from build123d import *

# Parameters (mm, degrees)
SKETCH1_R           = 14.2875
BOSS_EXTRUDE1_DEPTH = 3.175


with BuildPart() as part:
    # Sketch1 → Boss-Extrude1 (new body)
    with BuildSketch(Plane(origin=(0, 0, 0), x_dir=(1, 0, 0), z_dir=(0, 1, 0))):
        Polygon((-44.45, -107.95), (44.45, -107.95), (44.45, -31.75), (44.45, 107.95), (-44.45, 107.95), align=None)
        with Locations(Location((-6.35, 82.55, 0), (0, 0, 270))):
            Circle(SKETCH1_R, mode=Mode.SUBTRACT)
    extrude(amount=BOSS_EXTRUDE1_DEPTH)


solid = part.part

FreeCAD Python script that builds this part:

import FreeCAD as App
import Part
import Sketcher
from FreeCAD import Vector
Q = App.Units.Quantity


def add_polygon(sketch, points):
    """Adds a closed chain of lines whose ends are joined by coincident constraints."""
    first, n = sketch.GeometryCount, len(points)
    for a, b in zip(points, points[1:] + points[:1]):
        sketch.addGeometry(Part.LineSegment(App.Vector(*a, 0), App.Vector(*b, 0)), False)
    for i in range(n):
        sketch.addConstraint(Sketcher.Constraint("Coincident", first + i, 2, first + (i + 1) % n, 1))

doc = App.newDocument("Part")
body = doc.addObject("PartDesign::Body", "Body")

# Sketch on XZ plane
sketch1 = body.newObject("Sketcher::SketchObject", "Sketch")
sketch1.AttachmentSupport = (doc.getObject("XZ_Plane"), [""])
sketch1.MapMode = "FlatFace"
add_polygon(sketch1, [(-44, 108), (44, 108), (44, -108), (-44, -108)])  # lines 0-3
sketch1.addGeometry(Part.Circle(Vector(-6, -83, 0), Vector(0, 0, 1), 14), False)  # 4
sketch1.addConstraint(Sketcher.Constraint("Horizontal", 0))
sketch1.addConstraint(Sketcher.Constraint("Vertical", 1))
sketch1.addConstraint(Sketcher.Constraint("Horizontal", 2))
sketch1.addConstraint(Sketcher.Constraint("Vertical", 3))
sketch1.addConstraint(Sketcher.Constraint("Symmetric", 0, 2, 2, 2, -1, 1))
sketch1.addConstraint(Sketcher.Constraint("Diameter", 4, Q("1.125 in")))
sketch1.addConstraint(Sketcher.Constraint("DistanceX", 0, 1, 0, 2, Q("3.5 in")))
sketch1.addConstraint(Sketcher.Constraint("DistanceY", 1, 2, 1, 1, Q("8.5 in")))
sketch1.addConstraint(Sketcher.Constraint("DistanceX", 4, 3, 0, 2, Q("2 in")))
sketch1.addConstraint(Sketcher.Constraint("DistanceY", 1, 2, 4, 3, Q("1 in")))
pad1 = body.newObject("PartDesign::Pad", "Pad")
pad1.Profile = sketch1
pad1.Length = Q("0.125 in")
pad1.Reversed = True

doc.recompute()
